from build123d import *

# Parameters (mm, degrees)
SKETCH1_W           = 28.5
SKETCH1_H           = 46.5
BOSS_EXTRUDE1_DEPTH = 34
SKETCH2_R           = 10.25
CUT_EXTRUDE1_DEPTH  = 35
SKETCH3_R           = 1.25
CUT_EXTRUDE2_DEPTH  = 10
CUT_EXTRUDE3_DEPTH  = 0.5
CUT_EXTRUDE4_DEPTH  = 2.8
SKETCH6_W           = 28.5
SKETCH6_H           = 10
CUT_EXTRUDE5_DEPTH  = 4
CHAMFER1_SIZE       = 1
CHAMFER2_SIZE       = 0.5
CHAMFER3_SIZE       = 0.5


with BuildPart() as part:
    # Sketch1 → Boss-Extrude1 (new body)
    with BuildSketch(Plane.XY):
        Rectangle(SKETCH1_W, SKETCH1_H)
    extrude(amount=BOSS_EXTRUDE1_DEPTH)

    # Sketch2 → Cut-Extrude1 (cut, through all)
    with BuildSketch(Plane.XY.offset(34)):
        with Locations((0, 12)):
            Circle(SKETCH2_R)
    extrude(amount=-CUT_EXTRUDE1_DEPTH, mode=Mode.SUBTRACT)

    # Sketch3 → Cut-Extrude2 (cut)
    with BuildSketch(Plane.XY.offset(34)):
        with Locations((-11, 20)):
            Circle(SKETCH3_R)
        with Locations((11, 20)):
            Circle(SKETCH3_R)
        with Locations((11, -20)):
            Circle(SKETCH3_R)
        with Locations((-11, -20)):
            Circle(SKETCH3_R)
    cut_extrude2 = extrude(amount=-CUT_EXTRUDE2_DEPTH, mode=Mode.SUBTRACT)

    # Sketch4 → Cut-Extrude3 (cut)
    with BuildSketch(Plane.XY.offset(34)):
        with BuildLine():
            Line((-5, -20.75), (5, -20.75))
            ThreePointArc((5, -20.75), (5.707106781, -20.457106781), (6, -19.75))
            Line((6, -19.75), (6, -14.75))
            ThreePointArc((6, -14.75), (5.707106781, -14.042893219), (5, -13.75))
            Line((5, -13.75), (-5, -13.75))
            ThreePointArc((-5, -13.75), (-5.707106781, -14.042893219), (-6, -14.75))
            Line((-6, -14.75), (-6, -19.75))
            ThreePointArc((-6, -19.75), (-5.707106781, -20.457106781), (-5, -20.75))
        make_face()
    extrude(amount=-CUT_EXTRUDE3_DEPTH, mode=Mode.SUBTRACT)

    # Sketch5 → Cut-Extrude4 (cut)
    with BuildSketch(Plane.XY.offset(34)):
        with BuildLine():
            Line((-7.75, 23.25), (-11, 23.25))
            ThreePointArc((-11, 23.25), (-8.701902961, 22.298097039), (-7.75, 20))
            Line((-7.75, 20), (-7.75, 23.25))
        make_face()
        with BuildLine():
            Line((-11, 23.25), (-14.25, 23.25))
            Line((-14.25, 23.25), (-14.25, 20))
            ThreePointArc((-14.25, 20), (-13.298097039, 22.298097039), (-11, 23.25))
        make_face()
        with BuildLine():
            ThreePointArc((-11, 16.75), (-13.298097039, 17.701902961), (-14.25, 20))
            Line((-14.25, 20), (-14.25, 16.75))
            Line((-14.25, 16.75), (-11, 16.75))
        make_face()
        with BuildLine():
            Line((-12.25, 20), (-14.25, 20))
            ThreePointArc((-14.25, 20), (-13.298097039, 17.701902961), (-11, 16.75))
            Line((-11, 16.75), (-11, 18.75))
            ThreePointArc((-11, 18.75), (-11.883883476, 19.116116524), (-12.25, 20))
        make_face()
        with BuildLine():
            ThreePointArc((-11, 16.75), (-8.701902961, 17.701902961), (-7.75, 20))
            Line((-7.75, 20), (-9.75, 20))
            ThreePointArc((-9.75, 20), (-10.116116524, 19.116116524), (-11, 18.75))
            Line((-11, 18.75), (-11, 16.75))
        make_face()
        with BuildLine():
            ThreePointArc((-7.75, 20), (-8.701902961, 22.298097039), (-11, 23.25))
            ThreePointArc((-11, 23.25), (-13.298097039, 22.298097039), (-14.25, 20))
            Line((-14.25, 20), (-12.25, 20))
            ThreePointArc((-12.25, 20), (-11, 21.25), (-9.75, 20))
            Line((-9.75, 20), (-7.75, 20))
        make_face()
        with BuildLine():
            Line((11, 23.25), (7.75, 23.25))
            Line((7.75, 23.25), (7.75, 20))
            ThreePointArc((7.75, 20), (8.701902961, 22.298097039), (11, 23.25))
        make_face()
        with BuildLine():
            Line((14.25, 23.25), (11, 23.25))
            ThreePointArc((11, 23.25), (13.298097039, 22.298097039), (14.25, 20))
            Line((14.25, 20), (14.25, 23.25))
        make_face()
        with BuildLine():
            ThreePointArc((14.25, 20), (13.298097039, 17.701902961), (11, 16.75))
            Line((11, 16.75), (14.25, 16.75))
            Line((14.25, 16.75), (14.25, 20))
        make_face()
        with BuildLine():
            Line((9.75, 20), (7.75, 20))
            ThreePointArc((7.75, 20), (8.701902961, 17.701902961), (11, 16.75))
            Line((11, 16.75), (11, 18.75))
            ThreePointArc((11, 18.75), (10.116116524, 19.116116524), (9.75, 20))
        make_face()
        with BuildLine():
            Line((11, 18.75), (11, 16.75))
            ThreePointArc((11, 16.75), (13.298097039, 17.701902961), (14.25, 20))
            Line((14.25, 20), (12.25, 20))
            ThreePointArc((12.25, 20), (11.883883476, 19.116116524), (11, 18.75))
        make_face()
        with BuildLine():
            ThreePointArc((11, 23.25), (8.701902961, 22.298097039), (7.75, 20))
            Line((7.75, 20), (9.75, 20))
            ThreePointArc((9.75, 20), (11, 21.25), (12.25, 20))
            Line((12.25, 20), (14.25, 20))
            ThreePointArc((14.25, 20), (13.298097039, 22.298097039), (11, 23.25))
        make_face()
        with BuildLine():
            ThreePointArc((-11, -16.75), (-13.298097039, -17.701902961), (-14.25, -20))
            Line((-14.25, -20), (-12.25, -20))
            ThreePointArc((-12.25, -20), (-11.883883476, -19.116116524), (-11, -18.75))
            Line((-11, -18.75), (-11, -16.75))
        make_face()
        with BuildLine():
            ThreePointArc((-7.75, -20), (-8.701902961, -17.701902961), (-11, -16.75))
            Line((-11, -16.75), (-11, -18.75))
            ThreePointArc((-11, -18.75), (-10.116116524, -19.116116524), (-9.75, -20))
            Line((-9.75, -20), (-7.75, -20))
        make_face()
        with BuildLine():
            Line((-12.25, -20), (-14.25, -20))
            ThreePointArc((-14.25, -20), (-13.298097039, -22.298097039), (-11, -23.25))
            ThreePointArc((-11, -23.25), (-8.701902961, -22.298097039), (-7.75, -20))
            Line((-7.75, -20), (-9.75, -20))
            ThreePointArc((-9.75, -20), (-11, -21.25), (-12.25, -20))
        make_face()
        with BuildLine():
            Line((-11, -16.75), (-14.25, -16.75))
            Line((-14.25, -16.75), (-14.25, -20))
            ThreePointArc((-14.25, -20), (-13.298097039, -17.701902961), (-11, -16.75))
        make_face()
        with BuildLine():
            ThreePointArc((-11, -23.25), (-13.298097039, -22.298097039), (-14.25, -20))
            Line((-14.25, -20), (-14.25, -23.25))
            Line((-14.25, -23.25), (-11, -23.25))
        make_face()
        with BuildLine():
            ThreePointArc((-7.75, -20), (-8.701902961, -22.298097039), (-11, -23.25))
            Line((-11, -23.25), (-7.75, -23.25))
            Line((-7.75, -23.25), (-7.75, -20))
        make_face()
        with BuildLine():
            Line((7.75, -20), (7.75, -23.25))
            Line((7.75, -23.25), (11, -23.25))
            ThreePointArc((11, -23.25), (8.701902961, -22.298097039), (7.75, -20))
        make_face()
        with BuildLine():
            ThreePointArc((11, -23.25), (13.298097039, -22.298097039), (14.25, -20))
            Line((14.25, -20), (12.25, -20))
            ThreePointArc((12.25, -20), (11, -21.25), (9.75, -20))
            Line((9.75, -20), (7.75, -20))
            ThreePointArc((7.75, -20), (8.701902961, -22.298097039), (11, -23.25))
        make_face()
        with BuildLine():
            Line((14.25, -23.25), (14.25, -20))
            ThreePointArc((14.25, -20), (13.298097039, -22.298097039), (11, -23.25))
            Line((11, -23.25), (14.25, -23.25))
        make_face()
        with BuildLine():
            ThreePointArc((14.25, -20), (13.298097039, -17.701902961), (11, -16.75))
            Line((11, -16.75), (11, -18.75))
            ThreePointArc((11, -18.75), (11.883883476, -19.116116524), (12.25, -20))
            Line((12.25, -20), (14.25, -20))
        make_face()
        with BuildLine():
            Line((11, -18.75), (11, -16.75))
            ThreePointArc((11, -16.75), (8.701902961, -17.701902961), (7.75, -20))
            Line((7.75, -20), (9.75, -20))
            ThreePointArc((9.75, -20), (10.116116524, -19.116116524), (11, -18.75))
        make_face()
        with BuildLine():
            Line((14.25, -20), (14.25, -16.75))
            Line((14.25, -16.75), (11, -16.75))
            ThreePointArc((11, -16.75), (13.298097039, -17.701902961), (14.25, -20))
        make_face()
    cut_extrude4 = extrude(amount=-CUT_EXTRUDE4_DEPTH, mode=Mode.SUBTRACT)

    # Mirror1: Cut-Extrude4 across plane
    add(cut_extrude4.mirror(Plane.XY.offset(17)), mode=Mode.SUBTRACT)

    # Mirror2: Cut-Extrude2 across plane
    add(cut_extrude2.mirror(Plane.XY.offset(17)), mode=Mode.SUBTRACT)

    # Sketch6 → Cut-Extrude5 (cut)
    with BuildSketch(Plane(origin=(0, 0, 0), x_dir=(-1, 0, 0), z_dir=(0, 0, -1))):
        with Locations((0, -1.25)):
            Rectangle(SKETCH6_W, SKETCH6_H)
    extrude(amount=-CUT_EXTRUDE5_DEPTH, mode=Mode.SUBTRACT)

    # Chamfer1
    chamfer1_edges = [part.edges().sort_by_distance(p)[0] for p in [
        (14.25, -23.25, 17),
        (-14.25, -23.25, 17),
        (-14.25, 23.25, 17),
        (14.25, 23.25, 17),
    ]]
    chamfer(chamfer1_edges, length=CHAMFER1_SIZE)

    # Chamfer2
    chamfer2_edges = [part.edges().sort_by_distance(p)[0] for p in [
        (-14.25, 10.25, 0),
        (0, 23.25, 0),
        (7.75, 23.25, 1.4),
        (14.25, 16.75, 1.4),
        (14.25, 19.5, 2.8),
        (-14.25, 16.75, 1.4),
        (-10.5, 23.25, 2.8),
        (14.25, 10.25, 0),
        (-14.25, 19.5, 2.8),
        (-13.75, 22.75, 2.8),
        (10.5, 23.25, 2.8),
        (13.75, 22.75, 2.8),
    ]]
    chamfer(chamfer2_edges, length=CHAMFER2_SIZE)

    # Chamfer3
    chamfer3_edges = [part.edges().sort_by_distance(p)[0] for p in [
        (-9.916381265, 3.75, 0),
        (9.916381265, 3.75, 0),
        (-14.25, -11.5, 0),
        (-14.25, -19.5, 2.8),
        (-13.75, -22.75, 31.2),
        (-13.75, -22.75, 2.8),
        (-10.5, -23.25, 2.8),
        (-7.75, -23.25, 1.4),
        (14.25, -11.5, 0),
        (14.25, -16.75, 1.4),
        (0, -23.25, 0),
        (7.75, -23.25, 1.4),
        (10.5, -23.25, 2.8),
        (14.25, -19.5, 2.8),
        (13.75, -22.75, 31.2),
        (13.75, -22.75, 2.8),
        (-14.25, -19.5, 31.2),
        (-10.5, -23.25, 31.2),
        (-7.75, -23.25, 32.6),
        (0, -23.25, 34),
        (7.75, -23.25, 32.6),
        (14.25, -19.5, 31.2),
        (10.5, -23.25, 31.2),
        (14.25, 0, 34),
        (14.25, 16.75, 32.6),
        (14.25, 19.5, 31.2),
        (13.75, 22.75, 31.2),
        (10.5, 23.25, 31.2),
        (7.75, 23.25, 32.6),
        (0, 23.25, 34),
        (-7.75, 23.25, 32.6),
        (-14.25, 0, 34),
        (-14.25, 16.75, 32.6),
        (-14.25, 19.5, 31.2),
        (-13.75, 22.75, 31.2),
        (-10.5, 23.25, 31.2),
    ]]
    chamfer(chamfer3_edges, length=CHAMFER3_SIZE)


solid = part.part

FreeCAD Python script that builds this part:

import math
import FreeCAD as App
import Part
import Sketcher
from FreeCAD import Vector


def edges_at(feature, points):
    """Names of the edges that pass closest to the given points."""
    edges = feature.Shape.Edges
    near = lambda p: min(range(len(edges)), key=lambda i: edges[i].distToShape(Part.Vertex(*p))[0])
    return sorted({f"Edge{near(p) + 1}" for p in points})


def add_polygon(sketch, points):
    """Adds a closed chain of lines whose ends are joined by coincident constraints."""
    first, n = sketch.GeometryCount, len(points)
    for a, b in zip(points, points[1:] + points[:1]):
        sketch.addGeometry(Part.LineSegment(App.Vector(*a, 0), App.Vector(*b, 0)), False)
    for i in range(n):
        sketch.addConstraint(Sketcher.Constraint("Coincident", first + i, 2, first + (i + 1) % n, 1))

doc = App.newDocument("Part")
params = doc.addObject("Spreadsheet::Sheet", "Params")
for row, (alias, value) in enumerate([
    ("sketch1_width", "28.5 mm"),
    ("sketch1_height", "46.5 mm"),
    ("pad1_length", "34 mm"),
    ("sketch2_diameter", "20.5 mm"),
    ("sketch3_diameter", "2.5 mm"),
    ("pocket2_length", "10 mm"),
    ("sketch4_radius", "1 mm"),
    ("sketch4_width", "10 mm"),
    ("sketch4_height", "5 mm"),
    ("pocket3_length", "0.5 mm"),
    ("sketch5_radius", "3.25 mm"),
    ("sketch5_radius2", "1.25 mm"),
    ("sketch5_width", "6.5 mm"),
    ("pocket4_length", "2.8 mm"),
    ("sketch6_height", "10 mm"),
    ("sketch6_width", "28.5 mm"),
    ("pocket5_length", "4 mm"),
    ("chamfer_size", "1 mm"),
    ("chamfer2_size", "0.5 mm"),
    ("chamfer3_size", "0.5 mm"),
], start=1):
    params.set(f"A{row}", alias)
    params.set(f"B{row}", "=" + value)
    params.setAlias(f"B{row}", alias)

body = doc.addObject("PartDesign::Body", "Body")

sketch1 = doc.addObject("Sketcher::SketchObject", "Sketch")
body.addObject(sketch1)
sketch1.AttachmentSupport = (doc.XY_Plane, [""])
sketch1.MapMode = "FlatFace"
add_polygon(sketch1, [(-14, 23), (-14, -23), (14, -23), (14, 23)])
sketch1.addConstraint(Sketcher.Constraint("Vertical", 0))
sketch1.addConstraint(Sketcher.Constraint("Horizontal", 1))
sketch1.addConstraint(Sketcher.Constraint("Vertical", 2))
sketch1.addConstraint(Sketcher.Constraint("Horizontal", 3))
sketch1.addConstraint(Sketcher.Constraint("Symmetric", 0, 2, 2, 2, -1, 1))
sketch1.addConstraint(Sketcher.Constraint("DistanceX", 1, 1, 1, 2, 28.5))
sketch1.addConstraint(Sketcher.Constraint("DistanceY", 0, 2, 0, 1, 46.5))
sketch1.setExpression("Constraints[9]", "Params.sketch1_width")
sketch1.setExpression("Constraints[10]", "Params.sketch1_height")
pad1 = doc.addObject("PartDesign::Pad", "Pad")
body.addObject(pad1)
pad1.Profile = sketch1
pad1.setExpression("Length", "Params.pad1_length")

sketch2 = doc.addObject("Sketcher::SketchObject", "Sketch001")
body.addObject(sketch2)
sketch2.AttachmentSupport = (doc.XY_Plane, [""])
sketch2.MapMode = "FlatFace"
sketch2.AttachmentOffset = App.Placement(Vector(0, 0, 34), App.Rotation())
sketch2.addGeometry(Part.Circle(Vector(0, 12, 0), Vector(0, 0, 1), 10), False)
sketch2.addConstraint(Sketcher.Constraint("PointOnObject", 0, 3, -2))
sketch2.addConstraint(Sketcher.Constraint("Diameter", 0, 20.5))
sketch2.addConstraint(Sketcher.Constraint("DistanceY", -1, 1, 0, 3, 12.0))
sketch2.setExpression("Constraints[1]", "Params.sketch2_diameter")
pocket1 = doc.addObject("PartDesign::Pocket", "Pocket")
body.addObject(pocket1)
pocket1.Profile = sketch2
pocket1.Type = "ThroughAll"

sketch3 = doc.addObject("Sketcher::SketchObject", "Sketch002")
body.addObject(sketch3)
sketch3.AttachmentSupport = (doc.XY_Plane, [""])
sketch3.MapMode = "FlatFace"
sketch3.AttachmentOffset = App.Placement(Vector(0, 0, 34), App.Rotation())
sketch3.addGeometry(Part.Circle(Vector(-11, 20, 0), Vector(0, 0, 1), 1.2), False)
sketch3.addGeometry(Part.Circle(Vector(11, 20, 0), Vector(0, 0, 1), 1.2), False)
sketch3.addGeometry(Part.Circle(Vector(11, -20, 0), Vector(0, 0, 1), 1.2), False)
sketch3.addGeometry(Part.Circle(Vector(-11, -20, 0), Vector(0, 0, 1), 1.2), False)
sketch3.addConstraint(Sketcher.Constraint("Equal", 0, 1))
sketch3.addConstraint(Sketcher.Constraint("Equal", 1, 2))
sketch3.addConstraint(Sketcher.Constraint("Equal", 2, 3))
sketch3.addConstraint(Sketcher.Constraint("Symmetric", 0, 3, 2, 3, -1, 1))
sketch3.addConstraint(Sketcher.Constraint("Symmetric", 1, 3, 3, 3, -1, 1))
sketch3.addConstraint(Sketcher.Constraint("Symmetric", 0, 3, 1, 3, -2))
sketch3.addConstraint(Sketcher.Constraint("Diameter", 0, 2.5))
sketch3.addConstraint(Sketcher.Constraint("DistanceX", 0, 3, -1, 1, 11.0))
sketch3.addConstraint(Sketcher.Constraint("DistanceY", -1, 1, 0, 3, 20.0))
sketch3.setExpression("Constraints[6]", "Params.sketch3_diameter")
pocket2 = doc.addObject("PartDesign::Pocket", "Pocket001")
body.addObject(pocket2)
pocket2.Profile = sketch3
pocket2.setExpression("Length", "Params.pocket2_length")

sketch4 = doc.addObject("Sketcher::SketchObject", "Sketch003")
body.addObject(sketch4)
sketch4.AttachmentSupport = (doc.XY_Plane, [""])
sketch4.MapMode = "FlatFace"
sketch4.AttachmentOffset = App.Placement(Vector(0, 0, 34), App.Rotation())
sketch4.addGeometry(Part.LineSegment(Vector(-5, -20.8, 0), Vector(5, -20.8, 0)), False)
sketch4.addGeometry(Part.ArcOfCircle(Part.Circle(Vector(5, -19.7, 0), Vector(0, 0, 1), 1), math.radians(-90), math.radians(0)), False)
sketch4.addGeometry(Part.LineSegment(Vector(6, -19.8, 0), Vector(6, -14.8, 0)), False)
sketch4.addGeometry(Part.ArcOfCircle(Part.Circle(Vector(5, -14.8, 0), Vector(0, 0, 1), 1), math.radians(0), math.radians(90)), False)
sketch4.addGeometry(Part.LineSegment(Vector(5, -13.8, 0), Vector(-5, -13.8, 0)), False)
sketch4.addGeometry(Part.ArcOfCircle(Part.Circle(Vector(-5, -14.8, 0), Vector(0, 0, 1), 1), math.radians(90), math.radians(180)), False)
sketch4.addGeometry(Part.LineSegment(Vector(-6, -14.8, 0), Vector(-6, -19.8, 0)), False)
sketch4.addGeometry(Part.ArcOfCircle(Part.Circle(Vector(-5, -19.7, 0), Vector(0, 0, 1), 1), math.radians(-180), math.radians(-90)), False)
sketch4.addConstraint(Sketcher.Constraint("Tangent", 0, 2, 1, 1))
sketch4.addConstraint(Sketcher.Constraint("Tangent", 1, 2, 2, 1))
sketch4.addConstraint(Sketcher.Constraint("Tangent", 2, 2, 3, 1))
sketch4.addConstraint(Sketcher.Constraint("Tangent", 3, 2, 4, 1))
sketch4.addConstraint(Sketcher.Constraint("Tangent", 4, 2, 5, 1))
sketch4.addConstraint(Sketcher.Constraint("Tangent", 5, 2, 6, 1))
sketch4.addConstraint(Sketcher.Constraint("Tangent", 6, 2, 7, 1))
sketch4.addConstraint(Sketcher.Constraint("Tangent", 7, 2, 0, 1))
sketch4.addConstraint(Sketcher.Constraint("Horizontal", 0))
sketch4.addConstraint(Sketcher.Constraint("Vertical", 2))
sketch4.addConstraint(Sketcher.Constraint("Horizontal", 4))
sketch4.addConstraint(Sketcher.Constraint("Vertical", 6))
sketch4.addConstraint(Sketcher.Constraint("Equal", 1, 3))
sketch4.addConstraint(Sketcher.Constraint("Equal", 3, 5))
sketch4.addConstraint(Sketcher.Constraint("Equal", 5, 7))
sketch4.addConstraint(Sketcher.Constraint("Radius", 1, 1.0))
sketch4.addConstraint(Sketcher.Constraint("DistanceX", 0, 1, 0, 2, 10.0))
sketch4.addConstraint(Sketcher.Constraint("DistanceY", 2, 1, 2, 2, 5.0))
sketch4.addConstraint(Sketcher.Constraint("DistanceX", -1, 1, 1, 3, 5.0))
sketch4.addConstraint(Sketcher.Constraint("DistanceY", 1, 3, -1, 1, 19.75))
sketch4.setExpression("Constraints[15]", "Params.sketch4_radius")
sketch4.setExpression("Constraints[16]", "Params.sketch4_width")
sketch4.setExpression("Constraints[17]", "Params.sketch4_height")
pocket3 = doc.addObject("PartDesign::Pocket", "Pocket002")
body.addObject(pocket3)
pocket3.Profile = sketch4
pocket3.setExpression("Length", "Params.pocket3_length")

sketch5 = doc.addObject("Sketcher::SketchObject", "Sketch004")
body.addObject(sketch5)
sketch5.AttachmentSupport = (doc.XY_Plane, [""])
sketch5.MapMode = "FlatFace"
sketch5.AttachmentOffset = App.Placement(Vector(0, 0, 34), App.Rotation())
sketch5.addGeometry(Part.LineSegment(Vector(-7.8, 23.2, 0), Vector(-14.2, 23.2, 0)), False)
sketch5.addGeometry(Part.LineSegment(Vector(-14.2, 23.2, 0), Vector(-14.2, 16.8, 0)), False)
sketch5.addGeometry(Part.LineSegment(Vector(-14.2, 16.8, 0), Vector(-11, 16.8, 0)), False)
sketch5.addGeometry(Part.ArcOfCircle(Part.Circle(Vector(-11, 20, 0), Vector(0, 0, 1), 3.2), math.radians(-90), math.radians(0)), False)
sketch5.addGeometry(Part.LineSegment(Vector(-7.8, 20, 0), Vector(-7.8, 23.2, 0)), False)
sketch5.addGeometry(Part.ArcOfCircle(Part.Circle(Vector(-11, 20, 0), Vector(0, 0, 1), 1.2), math.radians(0), math.radians(180)), False)
sketch5.addGeometry(Part.ArcOfCircle(Part.Circle(Vector(-11, 20, 0), Vector(0, 0, 1), 1.3), math.radians(-90), math.radians(0)), False)
sketch5.addGeometry(Part.ArcOfCircle(Part.Circle(Vector(-11, 20, 0), Vector(0, 0, 1), 1.3), math.radians(-180), math.radians(-90)), False)
sketch5.addGeometry(Part.LineSegment(Vector(7.8, 23.2, 0), Vector(7.8, 20, 0)), False)
sketch5.addGeometry(Part.ArcOfCircle(Part.Circle(Vector(11, 20, 0), Vector(0, 0, 1), 3.2), math.radians(180), math.radians(270)), False)
sketch5.addGeometry(Part.LineSegment(Vector(11, 16.8, 0), Vector(14.2, 16.8, 0)), False)
sketch5.addGeometry(Part.LineSegment(Vector(14.2, 16.8, 0), Vector(14.2, 23.2, 0)), False)
sketch5.addGeometry(Part.LineSegment(Vector(14.2, 23.2, 0), Vector(7.8, 23.2, 0)), False)
sketch5.addGeometry(Part.ArcOfCircle(Part.Circle(Vector(11, 20, 0), Vector(0, 0, 1), 1.2), math.radians(0), math.radians(180)), False)
sketch5.addGeometry(Part.ArcOfCircle(Part.Circle(Vector(11, 20, 0), Vector(0, 0, 1), 1.3), math.radians(-90), math.radians(0)), False)
sketch5.addGeometry(Part.ArcOfCircle(Part.Circle(Vector(11, 20, 0), Vector(0, 0, 1), 1.3), math.radians(-180), math.radians(-90)), False)
sketch5.addGeometry(Part.ArcOfCircle(Part.Circle(Vector(-11, -20, 0), Vector(0, 0, 1), 3.2), math.radians(0), math.radians(90)), False)
sketch5.addGeometry(Part.LineSegment(Vector(-11, -16.8, 0), Vector(-14.2, -16.8, 0)), False)
sketch5.addGeometry(Part.LineSegment(Vector(-14.2, -16.8, 0), Vector(-14.2, -23.2, 0)), False)
sketch5.addGeometry(Part.LineSegment(Vector(-14.2, -23.2, 0), Vector(-7.8, -23.2, 0)), False)
sketch5.addGeometry(Part.LineSegment(Vector(-7.8, -23.2, 0), Vector(-7.8, -20, 0)), False)
sketch5.addGeometry(Part.ArcOfCircle(Part.Circle(Vector(-11, -20, 0), Vector(0, 0, 1), 1.3), math.radians(90), math.radians(180)), False)
sketch5.addGeometry(Part.ArcOfCircle(Part.Circle(Vector(-11, -20, 0), Vector(0, 0, 1), 1.3), math.radians(0), math.radians(90)), False)
sketch5.addGeometry(Part.ArcOfCircle(Part.Circle(Vector(-11, -20, 0), Vector(0, 0, 1), 1.2), math.radians(180), math.radians(360)), False)
sketch5.addGeometry(Part.ArcOfCircle(Part.Circle(Vector(11, -20, 0), Vector(0, 0, 1), 3.2), math.radians(90), math.radians(180)), False)
sketch5.addGeometry(Part.LineSegment(Vector(7.8, -20, 0), Vector(7.8, -23.2, 0)), False)
sketch5.addGeometry(Part.LineSegment(Vector(7.8, -23.2, 0), Vector(14.2, -23.2, 0)), False)
sketch5.addGeometry(Part.LineSegment(Vector(14.2, -23.2, 0), Vector(14.2, -16.8, 0)), False)
sketch5.addGeometry(Part.LineSegment(Vector(14.2, -16.8, 0), Vector(11, -16.8, 0)), False)
sketch5.addGeometry(Part.ArcOfCircle(Part.Circle(Vector(11, -20, 0), Vector(0, 0, 1), 1.3), math.radians(90), math.radians(180)), False)
sketch5.addGeometry(Part.ArcOfCircle(Part.Circle(Vector(11, -20, 0), Vector(0, 0, 1), 1.3), math.radians(0), math.radians(90)), False)
sketch5.addGeometry(Part.ArcOfCircle(Part.Circle(Vector(11, -20, 0), Vector(0, 0, 1), 1.2), math.radians(180), math.radians(360)), False)
sketch5.addConstraint(Sketcher.Constraint("Coincident", 0, 2, 1, 1))
sketch5.addConstraint(Sketcher.Constraint("Coincident", 1, 2, 2, 1))
sketch5.addConstraint(Sketcher.Constraint("Tangent", 2, 2, 3, 1))
sketch5.addConstraint(Sketcher.Constraint("Tangent", 3, 2, 4, 1))
sketch5.addConstraint(Sketcher.Constraint("Coincident", 4, 2, 0, 1))
sketch5.addConstraint(Sketcher.Constraint("Tangent", 5, 1, 6, 2))
sketch5.addConstraint(Sketcher.Constraint("Tangent", 6, 1, 7, 2))
sketch5.addConstraint(Sketcher.Constraint("Tangent", 7, 1, 5, 2))
sketch5.addConstraint(Sketcher.Constraint("Tangent", 8, 2, 9, 1))
sketch5.addConstraint(Sketcher.Constraint("Tangent", 9, 2, 10, 1))
sketch5.addConstraint(Sketcher.Constraint("Coincident", 10, 2, 11, 1))
sketch5.addConstraint(Sketcher.Constraint("Coincident", 11, 2, 12, 1))
sketch5.addConstraint(Sketcher.Constraint("Coincident", 12, 2, 8, 1))
sketch5.addConstraint(Sketcher.Constraint("Tangent", 13, 1, 14, 2))
sketch5.addConstraint(Sketcher.Constraint("Tangent", 14, 1, 15, 2))
sketch5.addConstraint(Sketcher.Constraint("Tangent", 15, 1, 13, 2))
sketch5.addConstraint(Sketcher.Constraint("Tangent", 16, 2, 17, 1))
sketch5.addConstraint(Sketcher.Constraint("Coincident", 17, 2, 18, 1))
sketch5.addConstraint(Sketcher.Constraint("Coincident", 18, 2, 19, 1))
sketch5.addConstraint(Sketcher.Constraint("Coincident", 19, 2, 20, 1))
sketch5.addConstraint(Sketcher.Constraint("Tangent", 20, 2, 16, 1))
sketch5.addConstraint(Sketcher.Constraint("Tangent", 21, 1, 22, 2))
sketch5.addConstraint(Sketcher.Constraint("Tangent", 22, 1, 23, 2))
sketch5.addConstraint(Sketcher.Constraint("Tangent", 23, 1, 21, 2))
sketch5.addConstraint(Sketcher.Constraint("Tangent", 24, 2, 25, 1))
sketch5.addConstraint(Sketcher.Constraint("Coincident", 25, 2, 26, 1))
sketch5.addConstraint(Sketcher.Constraint("Coincident", 26, 2, 27, 1))
sketch5.addConstraint(Sketcher.Constraint("Coincident", 27, 2, 28, 1))
sketch5.addConstraint(Sketcher.Constraint("Tangent", 28, 2, 24, 1))
sketch5.addConstraint(Sketcher.Constraint("Tangent", 29, 1, 30, 2))
sketch5.addConstraint(Sketcher.Constraint("Tangent", 30, 1, 31, 2))
sketch5.addConstraint(Sketcher.Constraint("Tangent", 31, 1, 29, 2))
sketch5.addConstraint(Sketcher.Constraint("Horizontal", 0))
sketch5.addConstraint(Sketcher.Constraint("Vertical", 1))
sketch5.addConstraint(Sketcher.Constraint("Horizontal", 2))
sketch5.addConstraint(Sketcher.Constraint("Vertical", 4))
sketch5.addConstraint(Sketcher.Constraint("Vertical", 8))
sketch5.addConstraint(Sketcher.Constraint("Horizontal", 10))
sketch5.addConstraint(Sketcher.Constraint("Vertical", 11))
sketch5.addConstraint(Sketcher.Constraint("Horizontal", 12))
sketch5.addConstraint(Sketcher.Constraint("Horizontal", 17))
sketch5.addConstraint(Sketcher.Constraint("Vertical", 18))
sketch5.addConstraint(Sketcher.Constraint("Horizontal", 19))
sketch5.addConstraint(Sketcher.Constraint("Vertical", 20))
sketch5.addConstraint(Sketcher.Constraint("Vertical", 25))
sketch5.addConstraint(Sketcher.Constraint("Horizontal", 26))
sketch5.addConstraint(Sketcher.Constraint("Vertical", 27))
sketch5.addConstraint(Sketcher.Constraint("Horizontal", 28))
sketch5.addConstraint(Sketcher.Constraint("Coincident", 5, 3, 3, 3))
sketch5.addConstraint(Sketcher.Constraint("Coincident", 13, 3, 9, 3))
sketch5.addConstraint(Sketcher.Constraint("Coincident", 21, 3, 16, 3))
sketch5.addConstraint(Sketcher.Constraint("Coincident", 29, 3, 24, 3))
sketch5.addConstraint(Sketcher.Constraint("Equal", 3, 9))
sketch5.addConstraint(Sketcher.Constraint("Equal", 7, 13))
sketch5.addConstraint(Sketcher.Constraint("Equal", 9, 16))
sketch5.addConstraint(Sketcher.Constraint("Equal", 15, 21))
sketch5.addConstraint(Sketcher.Constraint("Equal", 16, 24))
sketch5.addConstraint(Sketcher.Constraint("Equal", 23, 29))
sketch5.addConstraint(Sketcher.Constraint("Symmetric", 9, 3, 16, 3, -1, 1))
sketch5.addConstraint(Sketcher.Constraint("Symmetric", 3, 3, 24, 3, -1, 1))
sketch5.addConstraint(Sketcher.Constraint("Symmetric", 11, 2, 18, 2, -1, 1))
sketch5.addConstraint(Sketcher.Constraint("Symmetric", 0, 2, 26, 2, -1, 1))
sketch5.addConstraint(Sketcher.Constraint("Symmetric", 3, 3, 9, 3, -2))
sketch5.addConstraint(Sketcher.Constraint("Symmetric", 0, 2, 11, 2, -2))
sketch5.addConstraint(Sketcher.Constraint("Horizontal", 3, 2, 5, 1))
sketch5.addConstraint(Sketcher.Constraint("Horizontal", 5, 1, 7, 1))
sketch5.addConstraint(Sketcher.Constraint("Horizontal", 8, 2, 13, 1))
sketch5.addConstraint(Sketcher.Constraint("Horizontal", 13, 1, 15, 1))
sketch5.addConstraint(Sketcher.Constraint("Horizontal", 20, 2, 22, 1))
sketch5.addConstraint(Sketcher.Constraint("Horizontal", 22, 1, 23, 1))
sketch5.addConstraint(Sketcher.Constraint("Horizontal", 24, 2, 30, 1))
sketch5.addConstraint(Sketcher.Constraint("Horizontal", 30, 1, 31, 1))
sketch5.addConstraint(Sketcher.Constraint("Vertical", 2, 2, 6, 1))
sketch5.addConstraint(Sketcher.Constraint("Vertical", 9, 2, 14, 1))
sketch5.addConstraint(Sketcher.Constraint("Vertical", 16, 2, 21, 1))
sketch5.addConstraint(Sketcher.Constraint("Vertical", 28, 2, 29, 1))
sketch5.addConstraint(Sketcher.Constraint("Equal", 26, 1))
sketch5.addConstraint(Sketcher.Constraint("Radius", 3, 3.25))
sketch5.addConstraint(Sketcher.Constraint("Radius", 5, 1.25))
sketch5.addConstraint(Sketcher.Constraint("DistanceX", 0, 2, 0, 1, 6.5))
sketch5.addConstraint(Sketcher.Constraint("DistanceX", 3, 3, -1, 1, 11.0))
sketch5.addConstraint(Sketcher.Constraint("DistanceY", -1, 1, 3, 3, 20.0))
sketch5.setExpression("Constraints[77]", "Params.sketch5_radius")
sketch5.setExpression("Constraints[78]", "Params.sketch5_radius2")
sketch5.setExpression("Constraints[79]", "Params.sketch5_width")
pocket4 = doc.addObject("PartDesign::Pocket", "Pocket003")
body.addObject(pocket4)
pocket4.Profile = sketch5
pocket4.setExpression("Length", "Params.pocket4_length")
doc.recompute()

datumplane = doc.addObject("PartDesign::Plane", "DatumPlane")
body.addObject(datumplane)
datumplane.AttachmentSupport = (doc.XY_Plane, [""])
datumplane.MapMode = "FlatFace"
datumplane.AttachmentOffset = App.Placement(Vector(0, 0, 17), App.Rotation())
mirrored = doc.addObject("PartDesign::Mirrored", "Mirrored")
body.addObject(mirrored)
mirrored.Originals = [pocket4]
mirrored.MirrorPlane = (datumplane, [""])
body.Tip = mirrored
doc.recompute()

datumplane2 = doc.addObject("PartDesign::Plane", "DatumPlane001")
body.addObject(datumplane2)
datumplane2.AttachmentSupport = (doc.XY_Plane, [""])
datumplane2.MapMode = "FlatFace"
datumplane2.AttachmentOffset = App.Placement(Vector(0, 0, 17), App.Rotation())
mirrored2 = doc.addObject("PartDesign::Mirrored", "Mirrored001")
body.addObject(mirrored2)
mirrored2.Originals = [pocket2]
mirrored2.MirrorPlane = (datumplane2, [""])
body.Tip = mirrored2

sketch6 = doc.addObject("Sketcher::SketchObject", "Sketch005")
body.addObject(sketch6)
sketch6.AttachmentSupport = (doc.XY_Plane, [""])
sketch6.MapMode = "FlatFace"
add_polygon(sketch6, [(14, 4), (14, -6), (-14, -6), (-14, 4)])
sketch6.addConstraint(Sketcher.Constraint("Vertical", 0))
sketch6.addConstraint(Sketcher.Constraint("Horizontal", 1))
sketch6.addConstraint(Sketcher.Constraint("Vertical", 2))
sketch6.addConstraint(Sketcher.Constraint("Horizontal", 3))
sketch6.addConstraint(Sketcher.Constraint("DistanceY", 0, 2, 0, 1, 10.0))
sketch6.addConstraint(Sketcher.Constraint("DistanceX", 1, 2, 1, 1, 28.5))
sketch6.addConstraint(Sketcher.Constraint("DistanceX", -1, 1, 0, 2, 14.25))
sketch6.addConstraint(Sketcher.Constraint("DistanceY", 0, 2, -1, 1, 6.25))
sketch6.setExpression("Constraints[8]", "Params.sketch6_height")
sketch6.setExpression("Constraints[9]", "Params.sketch6_width")
pocket5 = doc.addObject("PartDesign::Pocket", "Pocket004")
body.addObject(pocket5)
pocket5.Profile = sketch6
pocket5.setExpression("Length", "Params.pocket5_length")
pocket5.Reversed = True
doc.recompute()

chamfer = doc.addObject("PartDesign::Chamfer", "Chamfer")
body.addObject(chamfer)
chamfer.Base = (pocket5, edges_at(pocket5, [
    (14.25, -23.25, 17),
    (-14.25, -23.25, 17),
    (-14.25, 23.25, 17),
    (14.25, 23.25, 17),
]))
chamfer.setExpression("Size", "Params.chamfer_size")
doc.recompute()

chamfer2 = doc.addObject("PartDesign::Chamfer", "Chamfer001")
body.addObject(chamfer2)
chamfer2.Base = (chamfer, edges_at(chamfer, [
    (-14.25, 10.25, 0),
    (0, 23.25, 0),
    (7.75, 23.25, 1.4),
    (14.25, 16.75, 1.4),
    (14.25, 19.5, 2.8),
    (-14.25, 16.75, 1.4),
    (-10.5, 23.25, 2.8),
    (14.25, 10.25, 0),
    (-14.25, 19.5, 2.8),
    (-13.75, 22.75, 2.8),
    (10.5, 23.25, 2.8),
    (13.75, 22.75, 2.8),
]))
chamfer2.setExpression("Size", "Params.chamfer2_size")
doc.recompute()

chamfer3 = doc.addObject("PartDesign::Chamfer", "Chamfer002")
body.addObject(chamfer3)
chamfer3.Base = (chamfer2, edges_at(chamfer2, [
    (-9.916, 3.75, 0),
    (9.916, 3.75, 0),
    (-14.25, -11.5, 0),
    (-14.25, -19.5, 2.8),
    (-13.75, -22.75, 31.2),
    (-13.75, -22.75, 2.8),
    (-10.5, -23.25, 2.8),
    (-7.75, -23.25, 1.4),
    (14.25, -11.5, 0),
    (14.25, -16.75, 1.4),
    (0, -23.25, 0),
    (7.75, -23.25, 1.4),
    (10.5, -23.25, 2.8),
    (14.25, -19.5, 2.8),
    (13.75, -22.75, 31.2),
    (13.75, -22.75, 2.8),
    (-14.25, -19.5, 31.2),
    (-10.5, -23.25, 31.2),
    (-7.75, -23.25, 32.6),
    (0, -23.25, 34),
    (7.75, -23.25, 32.6),
    (14.25, -19.5, 31.2),
    (10.5, -23.25, 31.2),
    (14.25, 0, 34),
    (14.25, 16.75, 32.6),
    (14.25, 19.5, 31.2),
    (13.75, 22.75, 31.2),
    (10.5, 23.25, 31.2),
    (7.75, 23.25, 32.6),
    (0, 23.25, 34),
    (-7.75, 23.25, 32.6),
    (-14.25, 0, 34),
    (-14.25, 16.75, 32.6),
    (-14.25, 19.5, 31.2),
    (-13.75, 22.75, 31.2),
    (-10.5, 23.25, 31.2),
]))
chamfer3.setExpression("Size", "Params.chamfer3_size")

doc.recompute()
